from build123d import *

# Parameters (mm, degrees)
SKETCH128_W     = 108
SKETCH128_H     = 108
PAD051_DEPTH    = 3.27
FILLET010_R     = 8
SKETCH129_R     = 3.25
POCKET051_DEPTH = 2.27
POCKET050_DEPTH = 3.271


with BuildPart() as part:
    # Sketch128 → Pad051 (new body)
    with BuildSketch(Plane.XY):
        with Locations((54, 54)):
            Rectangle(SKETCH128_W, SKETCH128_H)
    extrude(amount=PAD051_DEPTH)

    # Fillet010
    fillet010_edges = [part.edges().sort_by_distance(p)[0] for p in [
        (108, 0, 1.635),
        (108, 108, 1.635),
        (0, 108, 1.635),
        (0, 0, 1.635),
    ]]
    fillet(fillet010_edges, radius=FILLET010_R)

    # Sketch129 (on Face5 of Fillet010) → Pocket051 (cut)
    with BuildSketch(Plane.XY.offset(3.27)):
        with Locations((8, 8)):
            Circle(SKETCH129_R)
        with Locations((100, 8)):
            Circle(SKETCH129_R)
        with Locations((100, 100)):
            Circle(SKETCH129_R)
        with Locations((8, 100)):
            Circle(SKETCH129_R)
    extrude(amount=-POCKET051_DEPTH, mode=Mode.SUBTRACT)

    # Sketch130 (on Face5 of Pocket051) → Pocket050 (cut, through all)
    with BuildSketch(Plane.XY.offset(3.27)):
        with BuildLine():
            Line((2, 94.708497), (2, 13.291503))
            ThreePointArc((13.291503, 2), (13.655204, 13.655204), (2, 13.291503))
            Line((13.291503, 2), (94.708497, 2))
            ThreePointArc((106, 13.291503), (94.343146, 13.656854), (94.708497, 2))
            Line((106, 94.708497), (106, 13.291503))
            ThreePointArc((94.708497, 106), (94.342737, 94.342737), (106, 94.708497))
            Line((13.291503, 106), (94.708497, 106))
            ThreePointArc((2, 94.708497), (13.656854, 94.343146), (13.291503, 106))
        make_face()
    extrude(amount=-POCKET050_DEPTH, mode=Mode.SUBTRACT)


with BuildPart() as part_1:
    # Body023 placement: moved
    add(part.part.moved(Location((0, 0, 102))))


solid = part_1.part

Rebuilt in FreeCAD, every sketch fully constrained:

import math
import FreeCAD as App
import Part
import Sketcher

V = App.Vector
Q = App.Units.Quantity


def edges_at(feature, points):
    """Names of the edges that pass closest to the given points."""
    edges = feature.Shape.Edges
    near = lambda p: min(range(len(edges)), key=lambda i: edges[i].distToShape(Part.Vertex(*p))[0])
    return sorted({f"Edge{near(p) + 1}" for p in points})


def add_polygon(sketch, points):
    """Adds a closed chain of lines whose ends are joined by coincident constraints."""
    first, n = sketch.GeometryCount, len(points)
    for a, b in zip(points, points[1:] + points[:1]):
        sketch.addGeometry(Part.LineSegment(App.Vector(*a, 0), App.Vector(*b, 0)), False)
    for i in range(n):
        sketch.addConstraint(Sketcher.Constraint("Coincident", first + i, 2, first + (i + 1) % n, 1))

doc = App.newDocument("Part")
body = doc.addObject("PartDesign::Body", "Body")

sketch1 = body.newObject("Sketcher::SketchObject", "Sketch")
sketch1.AttachmentSupport = (doc.getObject("XY_Plane"), [""])
sketch1.MapMode = "FlatFace"
add_polygon(sketch1, [(0, 108), (0, 0), (108, 0), (108, 108)])
sketch1.addConstraint([
    Sketcher.Constraint("Vertical", 0),
    Sketcher.Constraint("Horizontal", 1),
    Sketcher.Constraint("Vertical", 2),
    Sketcher.Constraint("Horizontal", 3),
    Sketcher.Constraint("Coincident", 0, 2, -1, 1),
    Sketcher.Constraint("Equal", 3, 0),
    Sketcher.Constraint("DistanceX", 1, 1, 1, 2, Q("108 mm")),
])
pad1 = body.newObject("PartDesign::Pad", "Pad")
pad1.Profile = sketch1
pad1.Length = 3.27
doc.recompute()

fillet = body.newObject("PartDesign::Fillet", "Fillet")
fillet.Base = (pad1, edges_at(pad1, [
    (108, 0, 1.635),
    (108, 108, 1.635),
    (0, 108, 1.635),
    (0, 0, 1.635),
]))
fillet.Radius = 8

sketch2 = body.newObject("Sketcher::SketchObject", "Sketch001")
sketch2.AttachmentSupport = (doc.getObject("XY_Plane"), [""])
sketch2.MapMode = "FlatFace"
sketch2.AttachmentOffset = App.Placement(V(0, 0, 3.27), App.Rotation())
sketch2.addGeometry([
    Part.Circle(V(8, 8, 0), V(0, 0, 1), 3.2),
    Part.Circle(V(100, 8, 0), V(0, 0, 1), 3.2),
    Part.Circle(V(100, 100, 0), V(0, 0, 1), 3.2),
    Part.Circle(V(8, 100, 0), V(0, 0, 1), 3.2),
], False)
sketch2.addConstraint([
    Sketcher.Constraint("Equal", 0, 1),
    Sketcher.Constraint("Equal", 1, 2),
    Sketcher.Constraint("Equal", 2, 3),
    Sketcher.Constraint("Horizontal", 0, 3, 1, 3),
    Sketcher.Constraint("Horizontal", 2, 3, 3, 3),
    Sketcher.Constraint("Vertical", 1, 3, 2, 3),
    Sketcher.Constraint("Vertical", 0, 3, 3, 3),
    Sketcher.Constraint("Diameter", 0, Q("6.5 mm")),
    Sketcher.Constraint("DistanceX", -1, 1, 0, 3, Q("8 mm")),
    Sketcher.Constraint("DistanceY", -1, 1, 0, 3, Q("8 mm")),
    Sketcher.Constraint("DistanceX", -1, 1, 1, 3, Q("100 mm")),
    Sketcher.Constraint("DistanceY", -1, 1, 2, 3, Q("100 mm")),
])
pocket1 = body.newObject("PartDesign::Pocket", "Pocket")
pocket1.Profile = sketch2
pocket1.Length = 2.27

sketch3 = body.newObject("Sketcher::SketchObject", "Sketch002")
sketch3.AttachmentSupport = (doc.getObject("XY_Plane"), [""])
sketch3.MapMode = "FlatFace"
sketch3.AttachmentOffset = App.Placement(V(0, 0, 3.27), App.Rotation())
sketch3.addGeometry([
    Part.LineSegment(V(2, 95, 0), V(2, 13, 0)),
    Part.ArcOfCircle(Part.Circle(V(8, 8, 0), V(0, 0, 1), 8), math.radians(-49), math.radians(139)),
    Part.LineSegment(V(13, 2, 0), V(95, 2, 0)),
    Part.ArcOfCircle(Part.Circle(V(100, 8, 0), V(0, 0, 1), 8), math.radians(41), math.radians(229)),
    Part.LineSegment(V(106, 13, 0), V(106, 95, 0)),
    Part.ArcOfCircle(Part.Circle(V(100, 100, 0), V(0, 0, 1), 8), math.radians(131), math.radians(319)),
    Part.LineSegment(V(95, 106, 0), V(13, 106, 0)),
    Part.ArcOfCircle(Part.Circle(V(8, 100, 0), V(0, 0, 1), 8), math.radians(-139), math.radians(49)),
], False)
sketch3.addConstraint([
    Sketcher.Constraint("Coincident", 0, 2, 1, 2),
    Sketcher.Constraint("Coincident", 1, 1, 2, 1),
    Sketcher.Constraint("Coincident", 2, 2, 3, 2),
    Sketcher.Constraint("Coincident", 3, 1, 4, 1),
    Sketcher.Constraint("Coincident", 4, 2, 5, 2),
    Sketcher.Constraint("Coincident", 5, 1, 6, 1),
    Sketcher.Constraint("Coincident", 6, 2, 7, 2),
    Sketcher.Constraint("Coincident", 7, 1, 0, 1),
    Sketcher.Constraint("Vertical", 0),
    Sketcher.Constraint("Horizontal", 2),
    Sketcher.Constraint("Vertical", 4),
    Sketcher.Constraint("Horizontal", 6),
    Sketcher.Constraint("Equal", 3, 7),
    Sketcher.Constraint("Horizontal", 0, 2, 3, 1),
    Sketcher.Constraint("Horizontal", 4, 2, 7, 1),
    Sketcher.Constraint("Vertical", 2, 2, 5, 1),
    Sketcher.Constraint("Vertical", 1, 1, 6, 2),
    Sketcher.Constraint("Equal", 6, 0),
    Sketcher.Constraint("Radius", 3, Q("8 mm")),
    Sketcher.Constraint("DistanceX", -1, 1, 3, 3, Q("100 mm")),
    Sketcher.Constraint("DistanceY", -1, 1, 3, 3, Q("8 mm")),
    Sketcher.Constraint("DistanceX", -1, 1, 7, 3, Q("8 mm")),
    Sketcher.Constraint("DistanceY", -1, 1, 7, 3, Q("100 mm")),
    Sketcher.Constraint("DistanceX", -1, 1, 0, 2, Q("2 mm")),
    Sketcher.Constraint("DistanceY", -1, 1, 1, 1, Q("2 mm")),
    Sketcher.Constraint("DistanceX", -1, 1, 3, 1, Q("106 mm")),
    Sketcher.Constraint("Radius", 1, Q("7.999863 mm")),
    Sketcher.Constraint("Radius", 5, Q("8.000034 mm")),
])
pocket2 = body.newObject("PartDesign::Pocket", "Pocket001")
pocket2.Profile = sketch3
pocket2.Type = "ThroughAll"
body2 = doc.addObject("PartDesign::Body", "Body001")
doc.recompute()

body.Placement = App.Placement(V(0, 0, 102), App.Rotation(V(0, 0, 1), 0))
boolean = body2.newObject("PartDesign::Boolean", "Boolean")
boolean.Type = "Fuse"
boolean.addObjects([body])

doc.recompute()
